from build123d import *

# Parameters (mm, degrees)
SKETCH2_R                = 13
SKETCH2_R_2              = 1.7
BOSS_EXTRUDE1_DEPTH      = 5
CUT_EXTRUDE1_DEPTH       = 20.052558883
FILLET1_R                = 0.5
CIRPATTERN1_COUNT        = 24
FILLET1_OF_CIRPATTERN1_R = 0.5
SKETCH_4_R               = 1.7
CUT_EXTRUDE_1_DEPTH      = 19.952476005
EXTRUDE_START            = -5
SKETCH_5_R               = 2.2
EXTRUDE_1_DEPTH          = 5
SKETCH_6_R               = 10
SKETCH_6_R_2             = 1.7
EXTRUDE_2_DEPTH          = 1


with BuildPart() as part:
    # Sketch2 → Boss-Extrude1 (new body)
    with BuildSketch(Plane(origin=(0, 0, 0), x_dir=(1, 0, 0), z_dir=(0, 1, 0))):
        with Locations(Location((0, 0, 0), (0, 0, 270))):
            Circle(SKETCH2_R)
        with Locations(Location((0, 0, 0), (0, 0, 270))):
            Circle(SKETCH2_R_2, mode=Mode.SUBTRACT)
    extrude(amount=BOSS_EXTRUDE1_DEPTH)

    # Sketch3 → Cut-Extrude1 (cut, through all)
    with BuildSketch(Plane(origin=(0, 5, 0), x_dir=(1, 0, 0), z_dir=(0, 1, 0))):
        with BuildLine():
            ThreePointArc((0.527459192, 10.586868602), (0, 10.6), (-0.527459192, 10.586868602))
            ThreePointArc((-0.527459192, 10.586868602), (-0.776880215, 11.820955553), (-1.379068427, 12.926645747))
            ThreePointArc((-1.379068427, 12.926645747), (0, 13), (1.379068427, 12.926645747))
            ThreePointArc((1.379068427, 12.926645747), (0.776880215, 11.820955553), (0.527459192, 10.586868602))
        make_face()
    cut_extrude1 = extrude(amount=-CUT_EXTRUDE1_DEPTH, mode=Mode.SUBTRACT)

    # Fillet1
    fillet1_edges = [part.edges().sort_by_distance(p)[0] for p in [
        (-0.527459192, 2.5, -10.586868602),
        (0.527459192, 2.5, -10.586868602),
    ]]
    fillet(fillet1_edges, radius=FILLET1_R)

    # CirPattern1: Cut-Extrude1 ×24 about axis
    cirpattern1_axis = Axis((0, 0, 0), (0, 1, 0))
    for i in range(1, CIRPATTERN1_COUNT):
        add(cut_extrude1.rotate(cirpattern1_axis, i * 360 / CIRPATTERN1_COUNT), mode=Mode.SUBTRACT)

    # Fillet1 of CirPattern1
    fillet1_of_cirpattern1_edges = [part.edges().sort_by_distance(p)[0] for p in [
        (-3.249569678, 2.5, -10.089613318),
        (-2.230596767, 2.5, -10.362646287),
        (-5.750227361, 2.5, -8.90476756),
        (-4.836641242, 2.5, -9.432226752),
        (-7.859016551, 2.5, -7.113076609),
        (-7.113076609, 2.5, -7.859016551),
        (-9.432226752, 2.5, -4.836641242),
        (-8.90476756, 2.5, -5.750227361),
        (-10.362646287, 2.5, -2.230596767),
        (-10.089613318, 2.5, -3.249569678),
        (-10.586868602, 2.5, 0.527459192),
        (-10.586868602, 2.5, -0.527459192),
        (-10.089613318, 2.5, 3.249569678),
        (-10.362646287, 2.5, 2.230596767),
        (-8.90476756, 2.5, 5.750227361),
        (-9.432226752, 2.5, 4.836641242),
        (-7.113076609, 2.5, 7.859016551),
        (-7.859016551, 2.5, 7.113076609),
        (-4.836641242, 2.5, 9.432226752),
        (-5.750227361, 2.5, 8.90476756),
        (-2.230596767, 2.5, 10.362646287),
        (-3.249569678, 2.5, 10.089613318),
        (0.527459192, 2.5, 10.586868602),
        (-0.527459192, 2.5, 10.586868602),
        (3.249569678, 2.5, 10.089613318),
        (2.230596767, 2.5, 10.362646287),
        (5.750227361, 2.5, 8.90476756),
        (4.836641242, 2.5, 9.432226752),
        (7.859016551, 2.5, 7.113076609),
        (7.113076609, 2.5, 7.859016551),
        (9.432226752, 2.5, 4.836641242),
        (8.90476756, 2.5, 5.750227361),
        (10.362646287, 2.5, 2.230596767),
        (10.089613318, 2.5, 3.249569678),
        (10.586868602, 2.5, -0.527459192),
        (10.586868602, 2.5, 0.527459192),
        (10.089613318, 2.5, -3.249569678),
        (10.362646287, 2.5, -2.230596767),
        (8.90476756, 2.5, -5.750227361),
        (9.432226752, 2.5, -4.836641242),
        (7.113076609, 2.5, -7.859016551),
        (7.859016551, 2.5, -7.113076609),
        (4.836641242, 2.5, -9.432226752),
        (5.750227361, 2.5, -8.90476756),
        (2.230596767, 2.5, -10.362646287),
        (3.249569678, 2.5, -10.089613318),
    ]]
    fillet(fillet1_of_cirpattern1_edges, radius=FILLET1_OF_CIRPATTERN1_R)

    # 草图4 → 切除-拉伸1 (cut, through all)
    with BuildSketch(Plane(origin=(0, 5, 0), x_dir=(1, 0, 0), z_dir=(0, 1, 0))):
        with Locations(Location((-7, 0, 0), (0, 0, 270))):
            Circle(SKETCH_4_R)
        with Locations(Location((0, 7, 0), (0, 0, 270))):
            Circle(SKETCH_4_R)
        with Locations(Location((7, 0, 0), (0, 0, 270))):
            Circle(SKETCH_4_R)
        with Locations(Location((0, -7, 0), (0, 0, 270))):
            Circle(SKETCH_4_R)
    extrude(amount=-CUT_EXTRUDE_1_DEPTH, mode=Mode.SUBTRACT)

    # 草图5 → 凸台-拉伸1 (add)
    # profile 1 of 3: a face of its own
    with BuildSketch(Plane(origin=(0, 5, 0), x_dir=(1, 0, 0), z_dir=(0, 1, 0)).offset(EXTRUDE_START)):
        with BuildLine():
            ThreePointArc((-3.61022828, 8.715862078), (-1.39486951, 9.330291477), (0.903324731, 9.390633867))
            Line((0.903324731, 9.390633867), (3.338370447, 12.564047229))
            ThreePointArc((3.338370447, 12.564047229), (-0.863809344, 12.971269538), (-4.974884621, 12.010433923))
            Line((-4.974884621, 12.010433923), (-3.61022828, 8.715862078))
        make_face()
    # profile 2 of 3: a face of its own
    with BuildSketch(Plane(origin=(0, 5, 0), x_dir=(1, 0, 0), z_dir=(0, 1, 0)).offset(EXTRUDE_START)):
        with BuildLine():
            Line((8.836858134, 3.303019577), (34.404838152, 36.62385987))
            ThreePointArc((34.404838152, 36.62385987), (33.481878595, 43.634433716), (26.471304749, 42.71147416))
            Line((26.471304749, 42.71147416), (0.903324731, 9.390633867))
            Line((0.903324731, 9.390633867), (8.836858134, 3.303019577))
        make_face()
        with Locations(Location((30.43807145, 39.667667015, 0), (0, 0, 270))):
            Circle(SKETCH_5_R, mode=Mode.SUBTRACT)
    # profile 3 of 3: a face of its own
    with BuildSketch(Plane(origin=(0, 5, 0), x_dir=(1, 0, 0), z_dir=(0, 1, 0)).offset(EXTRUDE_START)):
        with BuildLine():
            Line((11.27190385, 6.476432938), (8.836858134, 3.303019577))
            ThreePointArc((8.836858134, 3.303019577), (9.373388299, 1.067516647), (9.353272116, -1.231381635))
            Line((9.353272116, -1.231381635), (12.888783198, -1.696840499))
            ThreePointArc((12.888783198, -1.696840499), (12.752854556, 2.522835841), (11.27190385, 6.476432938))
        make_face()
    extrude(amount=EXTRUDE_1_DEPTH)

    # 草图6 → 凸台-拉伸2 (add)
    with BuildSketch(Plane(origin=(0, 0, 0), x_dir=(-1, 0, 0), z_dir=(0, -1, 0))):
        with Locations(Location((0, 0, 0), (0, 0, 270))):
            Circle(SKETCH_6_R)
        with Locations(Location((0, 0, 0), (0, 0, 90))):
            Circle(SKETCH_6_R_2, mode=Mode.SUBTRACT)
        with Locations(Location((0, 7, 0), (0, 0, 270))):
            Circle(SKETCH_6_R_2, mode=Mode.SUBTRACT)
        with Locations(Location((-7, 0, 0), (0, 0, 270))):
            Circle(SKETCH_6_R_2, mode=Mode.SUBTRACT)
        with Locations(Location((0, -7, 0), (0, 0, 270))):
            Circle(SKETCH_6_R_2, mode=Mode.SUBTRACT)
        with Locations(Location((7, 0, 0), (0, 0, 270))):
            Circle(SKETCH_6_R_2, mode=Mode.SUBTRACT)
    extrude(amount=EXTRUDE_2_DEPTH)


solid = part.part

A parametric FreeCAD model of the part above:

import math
import FreeCAD as App
import Part
import Sketcher
Q = App.Units.Quantity


def edges_at(feature, points):
    """Names of the edges that pass closest to the given points."""
    edges = feature.Shape.Edges
    near = lambda p: min(range(len(edges)), key=lambda i: edges[i].distToShape(Part.Vertex(*p))[0])
    return sorted({f"Edge{near(p) + 1}" for p in points})

doc = App.newDocument("Part")
body = doc.addObject("PartDesign::Body", "Body")

# Sketch on XZ plane
sketch1 = body.newObject("Sketcher::SketchObject", "Sketch")
sketch1.AttachmentSupport = (doc.getObject("XZ_Plane"), [""])
sketch1.MapMode = "FlatFace"
sketch1.addGeometry(Part.Circle(App.Vector(0, 0, 0), App.Vector(0, 0, 1), 13), False)
sketch1.addGeometry(Part.Circle(App.Vector(0, 0, 0), App.Vector(0, 0, 1), 1.7), False)
sketch1.addConstraint(Sketcher.Constraint("Coincident", 0, 3, -1, 1))
sketch1.addConstraint(Sketcher.Constraint("Coincident", 1, 3, -1, 1))
sketch1.addConstraint(Sketcher.Constraint("Diameter", 0, Q("26 mm")))
sketch1.addConstraint(Sketcher.Constraint("Diameter", 1, Q("3.4 mm")))
pad1 = body.newObject("PartDesign::Pad", "Pad")
pad1.Profile = sketch1
pad1.Length = 5
pad1.Reversed = True

# Sketch on XZ plane
sketch2 = body.newObject("Sketcher::SketchObject", "Sketch001")
sketch2.AttachmentSupport = (doc.getObject("XZ_Plane"), [""])
sketch2.MapMode = "FlatFace"
sketch2.AttachmentOffset = App.Placement(App.Vector(0, 0, -5), App.Rotation())
sketch2.addGeometry(Part.ArcOfCircle(Part.Circle(App.Vector(0, 0, 0), App.Vector(0, 0, 1), 10.6), math.radians(-92.85), math.radians(-87.15)), False)
sketch2.addGeometry(Part.ArcOfCircle(Part.Circle(App.Vector(4.7, -10.4, 0), App.Vector(0, 0, 1), 4.2), math.radians(-177), math.radians(-143)), False)
sketch2.addGeometry(Part.ArcOfCircle(Part.Circle(App.Vector(0, 0, 0), App.Vector(0, 0, 1), 13), math.radians(-96.09), math.radians(-83.91)), False)
sketch2.addGeometry(Part.ArcOfCircle(Part.Circle(App.Vector(-4.7, -10.4, 0), App.Vector(0, 0, 1), 4.2), math.radians(-37), math.radians(-3)), False)
sketch2.addConstraint(Sketcher.Constraint("Coincident", 0, 2, 1, 1))
sketch2.addConstraint(Sketcher.Constraint("Coincident", 1, 2, 2, 2))
sketch2.addConstraint(Sketcher.Constraint("Coincident", 2, 1, 3, 1))
sketch2.addConstraint(Sketcher.Constraint("Coincident", 3, 2, 0, 1))
sketch2.addConstraint(Sketcher.Constraint("Coincident", 0, 3, -1, 1))
sketch2.addConstraint(Sketcher.Constraint("Coincident", 2, 3, -1, 1))
sketch2.addConstraint(Sketcher.Constraint("Equal", 1, 3))
sketch2.addConstraint(Sketcher.Constraint("Symmetric", 1, 3, 3, 3, -2))
sketch2.addConstraint(Sketcher.Constraint("Radius", 2, Q("13 mm")))
sketch2.addConstraint(Sketcher.Constraint("Radius", 0, Q("10.6 mm")))
sketch2.addConstraint(Sketcher.Constraint("Radius", 1, Q("4.222568 mm")))
sketch2.addConstraint(Sketcher.Constraint("DistanceX", -1, 1, 0, 2, Q("0.527459 mm")))
sketch2.addConstraint(Sketcher.Constraint("DistanceX", -1, 1, 1, 2, Q("1.379068 mm")))
pocket1 = body.newObject("PartDesign::Pocket", "Pocket")
pocket1.Profile = sketch2
pocket1.Type = "ThroughAll"
pocket1.Reversed = True
doc.recompute()

fillet = body.newObject("PartDesign::Fillet", "Fillet")
fillet.Base = (pocket1, edges_at(pocket1, [(-0.527, 2.5, -10.587), (0.527, 2.5, -10.587)]))
fillet.Radius = 0.5
doc.recompute()

polarpattern = body.newObject("PartDesign::PolarPattern", "PolarPattern")
polarpattern.Originals = [pocket1]
polarpattern.Axis = (doc.getObject("Y_Axis"), [""])
polarpattern.Angle = 360
polarpattern.Occurrences = 24
body.Tip = polarpattern
doc.recompute()

fillet2 = body.newObject("PartDesign::Fillet", "Fillet001")
fillet2.Base = (polarpattern, edges_at(polarpattern, [
    (-3.25, 2.5, -10.09),
    (-2.231, 2.5, -10.363),
    (-5.75, 2.5, -8.905),
    (-4.837, 2.5, -9.432),
    (-7.859, 2.5, -7.113),
    (-7.113, 2.5, -7.859),
    (-9.432, 2.5, -4.837),
    (-8.905, 2.5, -5.75),
    (-10.363, 2.5, -2.231),
    (-10.09, 2.5, -3.25),
    (-10.587, 2.5, 0.527),
    (-10.587, 2.5, -0.527),
    (-10.09, 2.5, 3.25),
    (-10.363, 2.5, 2.231),
    (-8.905, 2.5, 5.75),
    (-9.432, 2.5, 4.837),
    (-7.113, 2.5, 7.859),
    (-7.859, 2.5, 7.113),
    (-4.837, 2.5, 9.432),
    (-5.75, 2.5, 8.905),
    (-2.231, 2.5, 10.363),
    (-3.25, 2.5, 10.09),
    (0.527, 2.5, 10.587),
    (-0.527, 2.5, 10.587),
    (3.25, 2.5, 10.09),
    (2.231, 2.5, 10.363),
    (5.75, 2.5, 8.905),
    (4.837, 2.5, 9.432),
    (7.859, 2.5, 7.113),
    (7.113, 2.5, 7.859),
    (9.432, 2.5, 4.837),
    (8.905, 2.5, 5.75),
    (10.363, 2.5, 2.231),
    (10.09, 2.5, 3.25),
    (10.587, 2.5, -0.527),
    (10.587, 2.5, 0.527),
    (10.09, 2.5, -3.25),
    (10.363, 2.5, -2.231),
    (8.905, 2.5, -5.75),
    (9.432, 2.5, -4.837),
    (7.113, 2.5, -7.859),
    (7.859, 2.5, -7.113),
    (4.837, 2.5, -9.432),
    (5.75, 2.5, -8.905),
    (2.231, 2.5, -10.363),
    (3.25, 2.5, -10.09),
]))
fillet2.Radius = 0.5

# Sketch on XZ plane
sketch3 = body.newObject("Sketcher::SketchObject", "Sketch002")
sketch3.AttachmentSupport = (doc.getObject("XZ_Plane"), [""])
sketch3.MapMode = "FlatFace"
sketch3.AttachmentOffset = App.Placement(App.Vector(0, 0, -5), App.Rotation())
sketch3.addGeometry(Part.Circle(App.Vector(-7, 0, 0), App.Vector(0, 0, 1), 1.7), False)
sketch3.addGeometry(Part.Circle(App.Vector(0, -7, 0), App.Vector(0, 0, 1), 1.7), False)
sketch3.addGeometry(Part.Circle(App.Vector(7, 0, 0), App.Vector(0, 0, 1), 1.7), False)
sketch3.addGeometry(Part.Circle(App.Vector(0, 7, 0), App.Vector(0, 0, 1), 1.7), False)
sketch3.addConstraint(Sketcher.Constraint("Equal", 0, 1))
sketch3.addConstraint(Sketcher.Constraint("Equal", 1, 2))
sketch3.addConstraint(Sketcher.Constraint("Equal", 2, 3))
sketch3.addConstraint(Sketcher.Constraint("Symmetric", 0, 3, 2, 3, -1, 1))
sketch3.addConstraint(Sketcher.Constraint("Symmetric", 1, 3, 3, 3, -1, 1))
sketch3.addConstraint(Sketcher.Constraint("PointOnObject", 0, 3, -1))
sketch3.addConstraint(Sketcher.Constraint("PointOnObject", 1, 3, -2))
sketch3.addConstraint(Sketcher.Constraint("Diameter", 0, Q("3.4 mm")))
sketch3.addConstraint(Sketcher.Constraint("DistanceX", 0, 3, -1, 1, Q("7 mm")))
sketch3.addConstraint(Sketcher.Constraint("DistanceY", 1, 3, -1, 1, Q("7 mm")))
pocket2 = body.newObject("PartDesign::Pocket", "Pocket001")
pocket2.Profile = sketch3
pocket2.Type = "ThroughAll"
pocket2.Reversed = True

# Sketch on XZ plane
sketch4 = body.newObject("Sketcher::SketchObject", "Sketch003")
sketch4.AttachmentSupport = (doc.getObject("XZ_Plane"), [""])
sketch4.MapMode = "FlatFace"
sketch4.addGeometry(Part.ArcOfCircle(Part.Circle(App.Vector(0, 0, 0), App.Vector(0, 0, 1), 9.4), math.radians(-112), math.radians(-85)), False)
sketch4.addGeometry(Part.LineSegment(App.Vector(0.9, -9.4, 0), App.Vector(8.8, -3.3, 0)), False)
sketch4.addGeometry(Part.ArcOfCircle(Part.Circle(App.Vector(0, 0, 0), App.Vector(0, 0, 1), 9.4), math.radians(-20), math.radians(7)), False)
sketch4.addGeometry(Part.LineSegment(App.Vector(9.4, 1.2, 0), App.Vector(12.9, 1.7, 0)), False)
sketch4.addGeometry(Part.ArcOfCircle(Part.Circle(App.Vector(0, 0, 0), App.Vector(0, 0, 1), 13), math.radians(-30), math.radians(8)), False)
sketch4.addGeometry(Part.LineSegment(App.Vector(11.3, -6.5, 0), App.Vector(34.4, -36.6, 0)), False)
sketch4.addGeometry(Part.ArcOfCircle(Part.Circle(App.Vector(30.4, -39.7, 0), App.Vector(0, 0, 1), 5), math.radians(-142), math.radians(37)), False)
sketch4.addGeometry(Part.LineSegment(App.Vector(26.5, -42.7, 0), App.Vector(3.3, -12.6, 0)), False)
sketch4.addGeometry(Part.ArcOfCircle(Part.Circle(App.Vector(0, 0, 0), App.Vector(0, 0, 1), 13), math.radians(-112), math.radians(-75)), False)
sketch4.addGeometry(Part.LineSegment(App.Vector(-5, -12, 0), App.Vector(-3.6, -8.7, 0)), False)
sketch4.addGeometry(Part.Circle(App.Vector(30.4, -39.7, 0), App.Vector(0, 0, 1), 2.2), False)
sketch4.addConstraint(Sketcher.Constraint("Coincident", 0, 2, 1, 1))
sketch4.addConstraint(Sketcher.Constraint("Coincident", 1, 2, 2, 1))
sketch4.addConstraint(Sketcher.Constraint("Coincident", 2, 2, 3, 1))
sketch4.addConstraint(Sketcher.Constraint("Coincident", 3, 2, 4, 2))
sketch4.addConstraint(Sketcher.Constraint("Coincident", 4, 1, 5, 1))
sketch4.addConstraint(Sketcher.Constraint("Tangent", 5, 2, 6, 2))
sketch4.addConstraint(Sketcher.Constraint("Tangent", 6, 1, 7, 1))
sketch4.addConstraint(Sketcher.Constraint("Coincident", 7, 2, 8, 2))
sketch4.addConstraint(Sketcher.Constraint("Coincident", 8, 1, 9, 1))
sketch4.addConstraint(Sketcher.Constraint("Coincident", 9, 2, 0, 1))
sketch4.addConstraint(Sketcher.Constraint("Coincident", 0, 3, -1, 1))
sketch4.addConstraint(Sketcher.Constraint("Coincident", 2, 3, -1, 1))
sketch4.addConstraint(Sketcher.Constraint("Coincident", 4, 3, -1, 1))
sketch4.addConstraint(Sketcher.Constraint("Coincident", 8, 3, -1, 1))
sketch4.addConstraint(Sketcher.Constraint("Coincident", 10, 3, 6, 3))
sketch4.addConstraint(Sketcher.Constraint("Equal", 0, 2))
sketch4.addConstraint(Sketcher.Constraint("Equal", 4, 8))
sketch4.addConstraint(Sketcher.Constraint("Perpendicular", 1, 5))
sketch4.addConstraint(Sketcher.Constraint("Parallel", 5, 7))
sketch4.addConstraint(Sketcher.Constraint("Equal", 5, 7))
sketch4.addConstraint(Sketcher.Constraint("Radius", 4, Q("13 mm")))
sketch4.addConstraint(Sketcher.Constraint("Radius", 6, Q("5 mm")))
sketch4.addConstraint(Sketcher.Constraint("Diameter", 10, Q("4.4 mm")))
sketch4.addConstraint(Sketcher.Constraint("Distance", 1, Q("10 mm")))
sketch4.addConstraint(Sketcher.Constraint("Distance", 5, Q("38 mm")))
sketch4.addConstraint(Sketcher.Constraint("Angle", 1, Q("37.5 deg")))
sketch4.addConstraint(Sketcher.Constraint("Angle", 3, Q("7.5 deg")))
sketch4.addConstraint(Sketcher.Constraint("Angle", 9, Q("67.5 deg")))
sketch4.addConstraint(Sketcher.Constraint("Radius", 0, Q("9.433981 mm")))
sketch4.addConstraint(Sketcher.Constraint("DistanceY", 1, 2, 2, 2, Q("4.534401 mm")))
sketch4.addConstraint(Sketcher.Constraint("DistanceY", 8, 1, 0, 2, Q("2.6198 mm")))
pad2 = body.newObject("PartDesign::Pad", "Pad001")
pad2.Profile = sketch4
pad2.Length = 5
pad2.Reversed = True

# Sketch on XZ plane
sketch5 = body.newObject("Sketcher::SketchObject", "Sketch004")
sketch5.AttachmentSupport = (doc.getObject("XZ_Plane"), [""])
sketch5.MapMode = "FlatFace"
sketch5.addGeometry(Part.Circle(App.Vector(0, 0, 0), App.Vector(0, 0, 1), 10), False)
sketch5.addGeometry(Part.Circle(App.Vector(7, 0, 0), App.Vector(0, 0, 1), 1.7), False)
sketch5.addGeometry(Part.Circle(App.Vector(0, -7, 0), App.Vector(0, 0, 1), 1.7), False)
sketch5.addGeometry(Part.Circle(App.Vector(-7, 0, 0), App.Vector(0, 0, 1), 1.7), False)
sketch5.addGeometry(Part.Circle(App.Vector(0, 0, 0), App.Vector(0, 0, 1), 1.7), False)
sketch5.addGeometry(Part.Circle(App.Vector(0, 7, 0), App.Vector(0, 0, 1), 1.7), False)
sketch5.addConstraint(Sketcher.Constraint("Coincident", 0, 3, -1, 1))
sketch5.addConstraint(Sketcher.Constraint("Coincident", 4, 3, -1, 1))
sketch5.addConstraint(Sketcher.Constraint("Equal", 1, 2))
sketch5.addConstraint(Sketcher.Constraint("Equal", 2, 3))
sketch5.addConstraint(Sketcher.Constraint("Equal", 3, 4))
sketch5.addConstraint(Sketcher.Constraint("Equal", 4, 5))
sketch5.addConstraint(Sketcher.Constraint("Symmetric", 1, 3, 3, 3, -1, 1))
sketch5.addConstraint(Sketcher.Constraint("Symmetric", 2, 3, 5, 3, -1, 1))
sketch5.addConstraint(Sketcher.Constraint("PointOnObject", 1, 3, -1))
sketch5.addConstraint(Sketcher.Constraint("PointOnObject", 2, 3, -2))
sketch5.addConstraint(Sketcher.Constraint("Diameter", 0, Q("20 mm")))
sketch5.addConstraint(Sketcher.Constraint("Diameter", 1, Q("3.4 mm")))
sketch5.addConstraint(Sketcher.Constraint("DistanceX", -1, 1, 1, 3, Q("7 mm")))
sketch5.addConstraint(Sketcher.Constraint("DistanceY", 2, 3, -1, 1, Q("7 mm")))
pad3 = body.newObject("PartDesign::Pad", "Pad002")
pad3.Profile = sketch5
pad3.Length = 1

doc.recompute()
